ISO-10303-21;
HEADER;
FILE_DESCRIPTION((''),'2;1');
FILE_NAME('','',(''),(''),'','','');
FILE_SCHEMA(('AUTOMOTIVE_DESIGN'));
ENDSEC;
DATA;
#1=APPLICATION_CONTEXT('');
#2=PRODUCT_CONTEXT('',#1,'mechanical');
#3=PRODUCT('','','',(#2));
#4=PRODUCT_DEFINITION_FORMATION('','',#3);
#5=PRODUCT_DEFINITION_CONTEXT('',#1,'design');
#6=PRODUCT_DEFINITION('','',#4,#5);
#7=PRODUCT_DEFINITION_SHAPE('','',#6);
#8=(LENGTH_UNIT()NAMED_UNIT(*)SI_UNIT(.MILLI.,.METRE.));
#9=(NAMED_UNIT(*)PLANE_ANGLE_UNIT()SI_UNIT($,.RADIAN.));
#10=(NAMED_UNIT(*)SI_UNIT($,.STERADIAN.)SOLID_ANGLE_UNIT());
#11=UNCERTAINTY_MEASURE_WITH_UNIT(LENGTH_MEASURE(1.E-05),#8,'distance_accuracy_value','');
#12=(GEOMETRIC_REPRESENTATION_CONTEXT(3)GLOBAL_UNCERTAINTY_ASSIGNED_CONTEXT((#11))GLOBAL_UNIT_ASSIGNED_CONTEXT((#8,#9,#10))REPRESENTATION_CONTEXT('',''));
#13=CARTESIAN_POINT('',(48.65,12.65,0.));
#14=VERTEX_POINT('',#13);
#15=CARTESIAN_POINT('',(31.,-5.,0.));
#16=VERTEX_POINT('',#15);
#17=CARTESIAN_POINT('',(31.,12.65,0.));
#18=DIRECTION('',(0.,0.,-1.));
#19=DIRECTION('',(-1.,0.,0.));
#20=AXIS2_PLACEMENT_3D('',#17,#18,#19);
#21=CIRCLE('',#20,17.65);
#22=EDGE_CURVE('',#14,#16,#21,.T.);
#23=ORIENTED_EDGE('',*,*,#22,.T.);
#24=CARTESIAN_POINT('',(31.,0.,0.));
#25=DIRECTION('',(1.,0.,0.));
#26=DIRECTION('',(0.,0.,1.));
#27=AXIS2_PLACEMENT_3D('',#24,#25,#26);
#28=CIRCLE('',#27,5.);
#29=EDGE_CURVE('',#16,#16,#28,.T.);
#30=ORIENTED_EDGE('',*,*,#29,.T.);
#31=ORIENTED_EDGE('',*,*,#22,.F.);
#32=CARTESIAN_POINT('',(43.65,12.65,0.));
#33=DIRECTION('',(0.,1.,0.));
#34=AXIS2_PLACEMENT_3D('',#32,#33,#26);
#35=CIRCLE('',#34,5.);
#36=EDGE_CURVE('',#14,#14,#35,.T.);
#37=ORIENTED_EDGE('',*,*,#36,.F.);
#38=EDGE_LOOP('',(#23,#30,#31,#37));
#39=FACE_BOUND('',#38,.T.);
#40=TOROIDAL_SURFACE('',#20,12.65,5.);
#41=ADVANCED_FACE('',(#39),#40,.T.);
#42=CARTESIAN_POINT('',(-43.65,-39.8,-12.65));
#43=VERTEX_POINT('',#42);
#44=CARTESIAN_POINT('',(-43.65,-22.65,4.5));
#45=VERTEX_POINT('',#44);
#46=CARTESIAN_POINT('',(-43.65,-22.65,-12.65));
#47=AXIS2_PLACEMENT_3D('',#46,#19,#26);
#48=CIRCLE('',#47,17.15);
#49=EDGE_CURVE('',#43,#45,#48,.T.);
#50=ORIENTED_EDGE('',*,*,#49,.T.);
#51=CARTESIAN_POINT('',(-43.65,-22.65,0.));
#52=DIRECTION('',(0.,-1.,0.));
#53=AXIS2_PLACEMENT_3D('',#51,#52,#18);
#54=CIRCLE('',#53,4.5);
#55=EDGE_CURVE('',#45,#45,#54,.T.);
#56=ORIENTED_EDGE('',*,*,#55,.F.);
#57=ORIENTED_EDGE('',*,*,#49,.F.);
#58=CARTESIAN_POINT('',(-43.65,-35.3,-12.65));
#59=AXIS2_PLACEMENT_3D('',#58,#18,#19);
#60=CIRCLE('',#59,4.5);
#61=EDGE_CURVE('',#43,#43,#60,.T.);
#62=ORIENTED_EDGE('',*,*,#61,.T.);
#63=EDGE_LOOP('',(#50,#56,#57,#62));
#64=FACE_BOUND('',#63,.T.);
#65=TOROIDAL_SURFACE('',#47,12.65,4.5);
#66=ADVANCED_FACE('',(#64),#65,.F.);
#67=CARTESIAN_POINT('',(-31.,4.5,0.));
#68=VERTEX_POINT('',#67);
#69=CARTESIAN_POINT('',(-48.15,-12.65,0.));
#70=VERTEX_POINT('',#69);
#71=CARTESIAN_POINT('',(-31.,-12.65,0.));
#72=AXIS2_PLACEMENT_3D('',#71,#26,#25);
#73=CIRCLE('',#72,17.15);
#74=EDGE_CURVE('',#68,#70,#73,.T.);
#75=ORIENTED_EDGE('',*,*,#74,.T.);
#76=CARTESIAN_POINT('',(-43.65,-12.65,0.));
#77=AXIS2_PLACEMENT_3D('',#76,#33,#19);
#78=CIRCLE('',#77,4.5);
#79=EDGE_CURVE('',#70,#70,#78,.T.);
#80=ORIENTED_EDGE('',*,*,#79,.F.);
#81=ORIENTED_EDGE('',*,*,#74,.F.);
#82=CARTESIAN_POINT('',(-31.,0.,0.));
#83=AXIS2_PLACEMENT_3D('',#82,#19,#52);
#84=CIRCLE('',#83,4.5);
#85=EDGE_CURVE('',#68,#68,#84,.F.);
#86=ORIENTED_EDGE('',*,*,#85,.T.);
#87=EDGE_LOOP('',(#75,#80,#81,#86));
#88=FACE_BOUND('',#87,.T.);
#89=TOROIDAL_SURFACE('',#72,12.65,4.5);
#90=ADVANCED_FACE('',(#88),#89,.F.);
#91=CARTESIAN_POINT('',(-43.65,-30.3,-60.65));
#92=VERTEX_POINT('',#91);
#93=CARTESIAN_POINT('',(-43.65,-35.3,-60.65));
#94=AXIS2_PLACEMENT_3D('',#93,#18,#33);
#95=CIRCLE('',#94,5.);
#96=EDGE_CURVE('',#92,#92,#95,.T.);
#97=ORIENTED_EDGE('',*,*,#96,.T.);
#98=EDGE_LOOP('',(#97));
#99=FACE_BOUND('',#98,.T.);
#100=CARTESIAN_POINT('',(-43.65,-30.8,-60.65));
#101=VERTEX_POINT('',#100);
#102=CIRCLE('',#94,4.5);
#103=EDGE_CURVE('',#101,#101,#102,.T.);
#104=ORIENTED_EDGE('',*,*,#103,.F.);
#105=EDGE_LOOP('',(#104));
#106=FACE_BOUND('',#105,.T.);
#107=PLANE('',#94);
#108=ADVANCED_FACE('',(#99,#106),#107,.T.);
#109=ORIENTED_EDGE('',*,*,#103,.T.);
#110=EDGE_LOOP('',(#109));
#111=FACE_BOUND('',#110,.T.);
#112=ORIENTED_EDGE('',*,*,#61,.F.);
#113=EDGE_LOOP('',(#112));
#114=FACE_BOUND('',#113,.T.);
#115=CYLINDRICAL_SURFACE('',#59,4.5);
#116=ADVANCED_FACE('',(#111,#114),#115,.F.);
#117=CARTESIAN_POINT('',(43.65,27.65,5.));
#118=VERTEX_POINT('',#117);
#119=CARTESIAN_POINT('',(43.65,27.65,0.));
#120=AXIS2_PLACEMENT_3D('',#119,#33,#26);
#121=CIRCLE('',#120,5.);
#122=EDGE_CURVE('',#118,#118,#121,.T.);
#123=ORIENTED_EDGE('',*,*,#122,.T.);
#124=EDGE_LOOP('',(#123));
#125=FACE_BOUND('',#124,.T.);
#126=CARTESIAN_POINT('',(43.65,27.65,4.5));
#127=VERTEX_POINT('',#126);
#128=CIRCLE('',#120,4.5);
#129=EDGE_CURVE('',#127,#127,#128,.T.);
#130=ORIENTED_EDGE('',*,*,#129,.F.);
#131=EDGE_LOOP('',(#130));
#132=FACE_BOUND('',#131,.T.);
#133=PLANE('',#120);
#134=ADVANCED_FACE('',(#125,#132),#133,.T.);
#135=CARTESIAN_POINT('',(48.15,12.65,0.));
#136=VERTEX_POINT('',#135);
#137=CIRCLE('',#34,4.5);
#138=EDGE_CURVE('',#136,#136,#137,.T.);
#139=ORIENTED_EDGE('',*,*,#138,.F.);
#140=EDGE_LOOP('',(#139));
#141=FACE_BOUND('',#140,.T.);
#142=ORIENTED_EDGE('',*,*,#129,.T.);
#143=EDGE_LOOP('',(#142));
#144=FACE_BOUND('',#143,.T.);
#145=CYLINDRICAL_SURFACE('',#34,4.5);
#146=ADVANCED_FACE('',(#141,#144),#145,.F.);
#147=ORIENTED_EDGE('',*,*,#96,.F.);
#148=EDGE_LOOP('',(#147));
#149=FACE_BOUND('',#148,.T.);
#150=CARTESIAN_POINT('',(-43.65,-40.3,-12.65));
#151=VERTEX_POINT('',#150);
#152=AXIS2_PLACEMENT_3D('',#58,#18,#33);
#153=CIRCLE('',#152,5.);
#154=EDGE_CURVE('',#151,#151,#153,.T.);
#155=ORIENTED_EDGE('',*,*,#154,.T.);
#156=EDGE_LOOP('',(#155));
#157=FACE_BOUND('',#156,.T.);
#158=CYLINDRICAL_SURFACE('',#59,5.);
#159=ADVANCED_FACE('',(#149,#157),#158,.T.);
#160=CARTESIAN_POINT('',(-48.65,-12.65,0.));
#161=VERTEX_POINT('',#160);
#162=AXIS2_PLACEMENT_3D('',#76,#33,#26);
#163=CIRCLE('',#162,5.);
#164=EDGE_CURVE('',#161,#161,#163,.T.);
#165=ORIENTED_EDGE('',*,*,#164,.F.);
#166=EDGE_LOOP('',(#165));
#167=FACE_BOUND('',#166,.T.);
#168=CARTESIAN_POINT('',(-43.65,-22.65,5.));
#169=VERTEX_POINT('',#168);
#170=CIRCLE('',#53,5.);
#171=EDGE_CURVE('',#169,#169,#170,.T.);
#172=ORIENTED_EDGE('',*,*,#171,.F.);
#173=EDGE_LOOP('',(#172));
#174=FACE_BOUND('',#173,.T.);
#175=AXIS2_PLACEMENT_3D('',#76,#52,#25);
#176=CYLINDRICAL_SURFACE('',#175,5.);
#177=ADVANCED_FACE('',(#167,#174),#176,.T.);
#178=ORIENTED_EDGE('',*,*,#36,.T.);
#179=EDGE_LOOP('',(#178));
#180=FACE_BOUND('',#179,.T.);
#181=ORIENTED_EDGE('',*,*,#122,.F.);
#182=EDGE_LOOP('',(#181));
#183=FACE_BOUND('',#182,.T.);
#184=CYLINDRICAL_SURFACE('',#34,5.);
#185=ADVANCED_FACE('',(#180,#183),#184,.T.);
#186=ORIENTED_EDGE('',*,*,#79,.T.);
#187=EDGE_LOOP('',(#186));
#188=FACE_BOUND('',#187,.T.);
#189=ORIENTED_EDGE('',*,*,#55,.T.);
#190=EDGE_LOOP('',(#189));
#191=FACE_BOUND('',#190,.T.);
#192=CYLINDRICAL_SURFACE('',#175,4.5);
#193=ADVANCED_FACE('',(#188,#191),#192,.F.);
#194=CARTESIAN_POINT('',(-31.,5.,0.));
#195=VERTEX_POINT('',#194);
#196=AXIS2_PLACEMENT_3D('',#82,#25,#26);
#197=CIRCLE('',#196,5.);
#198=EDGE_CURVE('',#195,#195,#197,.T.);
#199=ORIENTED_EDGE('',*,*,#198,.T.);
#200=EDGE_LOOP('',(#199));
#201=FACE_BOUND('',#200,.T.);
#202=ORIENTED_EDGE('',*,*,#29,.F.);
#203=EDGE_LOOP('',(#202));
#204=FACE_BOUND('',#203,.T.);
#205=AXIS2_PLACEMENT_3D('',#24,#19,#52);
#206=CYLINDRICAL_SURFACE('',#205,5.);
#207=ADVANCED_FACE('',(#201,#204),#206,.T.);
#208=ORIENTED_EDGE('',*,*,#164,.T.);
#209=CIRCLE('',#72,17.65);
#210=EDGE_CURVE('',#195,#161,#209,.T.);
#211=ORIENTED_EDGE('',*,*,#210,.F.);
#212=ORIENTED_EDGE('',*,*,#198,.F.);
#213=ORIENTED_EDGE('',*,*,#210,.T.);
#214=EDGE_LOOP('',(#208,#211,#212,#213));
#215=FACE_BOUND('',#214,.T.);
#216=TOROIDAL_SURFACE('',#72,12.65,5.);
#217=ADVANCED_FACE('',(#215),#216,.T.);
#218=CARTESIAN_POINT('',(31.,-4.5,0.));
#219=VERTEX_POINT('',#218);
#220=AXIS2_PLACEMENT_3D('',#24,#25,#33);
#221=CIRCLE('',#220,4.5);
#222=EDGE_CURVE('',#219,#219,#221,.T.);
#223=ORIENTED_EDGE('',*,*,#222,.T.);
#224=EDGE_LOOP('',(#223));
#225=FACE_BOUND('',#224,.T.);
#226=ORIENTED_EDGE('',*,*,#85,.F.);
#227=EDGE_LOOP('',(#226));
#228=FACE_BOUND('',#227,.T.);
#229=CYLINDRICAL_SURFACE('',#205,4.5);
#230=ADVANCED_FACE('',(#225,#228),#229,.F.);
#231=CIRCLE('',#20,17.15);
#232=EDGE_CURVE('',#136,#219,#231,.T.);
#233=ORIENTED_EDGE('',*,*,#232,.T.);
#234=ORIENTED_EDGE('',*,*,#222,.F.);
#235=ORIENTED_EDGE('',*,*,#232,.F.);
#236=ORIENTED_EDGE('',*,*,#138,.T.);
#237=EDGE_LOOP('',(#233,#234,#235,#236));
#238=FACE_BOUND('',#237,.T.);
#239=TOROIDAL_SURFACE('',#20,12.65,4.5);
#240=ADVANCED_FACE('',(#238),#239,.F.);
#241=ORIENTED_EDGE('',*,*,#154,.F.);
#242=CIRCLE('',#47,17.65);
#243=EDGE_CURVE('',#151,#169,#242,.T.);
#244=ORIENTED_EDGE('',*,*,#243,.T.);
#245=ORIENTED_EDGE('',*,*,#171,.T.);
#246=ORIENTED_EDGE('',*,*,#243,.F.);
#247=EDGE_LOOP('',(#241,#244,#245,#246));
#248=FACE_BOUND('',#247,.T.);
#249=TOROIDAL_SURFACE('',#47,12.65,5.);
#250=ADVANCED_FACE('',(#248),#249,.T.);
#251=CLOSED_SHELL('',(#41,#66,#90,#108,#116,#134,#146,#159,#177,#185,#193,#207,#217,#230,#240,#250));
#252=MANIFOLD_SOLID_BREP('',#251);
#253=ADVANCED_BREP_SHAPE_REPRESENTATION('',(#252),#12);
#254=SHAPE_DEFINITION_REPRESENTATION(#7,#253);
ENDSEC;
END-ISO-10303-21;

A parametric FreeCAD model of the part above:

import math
import FreeCAD as App
import Part
import Sketcher

V = App.Vector
Q = App.Units.Quantity


def faces_at(feature, points):
    """Names of the faces that lie closest to the given points."""
    faces = feature.Shape.Faces
    near = lambda p: min(range(len(faces)), key=lambda i: faces[i].distToShape(Part.Vertex(*p))[0])
    return sorted({f"Face{near(p) + 1}" for p in points})

doc = App.newDocument("Part")
params = doc.addObject("Spreadsheet::Sheet", "Params")
for row, (alias, value) in enumerate([
    ("sketch1_diameter", "10 mm"),
    ("sketch2_width", "62 mm"),
    ("sketch2_height", "15 mm"),
    ("sketch2_height2", "10 mm"),
    ("sketch2_radius", "12.65 mm"),
    ("sketch3_diameter", "10 mm"),
    ("sketch4_height", "48 mm"),
    ("sketch4_radius", "12.65 mm"),
    ("thickness_wall", "0.5 mm"),
], start=1):
    params.set(f"A{row}", alias)
    params.set(f"B{row}", "=" + value)
    params.setAlias(f"B{row}", alias)

body = doc.addObject("PartDesign::Body", "Body")

sketch1 = doc.addObject("Sketcher::SketchObject", "Sketch")
body.addObject(sketch1)
sketch1.AttachmentSupport = (doc.XZ_Plane, [""])
sketch1.MapMode = "FlatFace"
sketch1.AttachmentOffset = App.Placement(V(0, 0, -27.65), App.Rotation())
sketch1.addGeometry(Part.Circle(V(44, 0, 0), V(0, 0, 1), 5), False)
sketch1.addConstraint(Sketcher.Constraint("PointOnObject", 0, 3, -1))
sketch1.addConstraint(Sketcher.Constraint("Diameter", 0, Q("10 mm")))
sketch1.addConstraint(Sketcher.Constraint("DistanceX", -1, 1, 0, 3, Q("43.65 mm")))
sketch1.setExpression("Constraints[1]", "Params.sketch1_diameter")

sketch2 = doc.addObject("Sketcher::SketchObject", "Sketch001")
body.addObject(sketch2)
sketch2.AttachmentSupport = (doc.XY_Plane, [""])
sketch2.MapMode = "FlatFace"
sketch2.addGeometry(Part.LineSegment(V(44, 28, 0), V(44, 13, 0)), False)
sketch2.addGeometry(Part.ArcOfCircle(Part.Circle(V(31, 13, 0), V(0, 0, 1), 13), math.radians(-90), math.radians(0)), False)
sketch2.addGeometry(Part.LineSegment(V(31, 0, 0), V(-31, 0, 0)), False)
sketch2.addGeometry(Part.ArcOfCircle(Part.Circle(V(-31, -13, 0), V(0, 0, 1), 13), math.radians(90), math.radians(180)), False)
sketch2.addGeometry(Part.LineSegment(V(-44, -13, 0), V(-44, -23, 0)), False)
sketch2.addConstraint(Sketcher.Constraint("Tangent", 0, 2, 1, 2))
sketch2.addConstraint(Sketcher.Constraint("Tangent", 1, 1, 2, 1))
sketch2.addConstraint(Sketcher.Constraint("Tangent", 2, 2, 3, 1))
sketch2.addConstraint(Sketcher.Constraint("Tangent", 3, 2, 4, 1))
sketch2.addConstraint(Sketcher.Constraint("Vertical", 0))
sketch2.addConstraint(Sketcher.Constraint("Horizontal", 2))
sketch2.addConstraint(Sketcher.Constraint("Vertical", 4))
sketch2.addConstraint(Sketcher.Constraint("Equal", 1, 3))
sketch2.addConstraint(Sketcher.Constraint("Symmetric", 1, 3, 3, 3, -1, 1))
sketch2.addConstraint(Sketcher.Constraint("DistanceX", 2, 2, 2, 1, Q("62 mm")))
sketch2.addConstraint(Sketcher.Constraint("DistanceY", 0, 2, 0, 1, Q("15 mm")))
sketch2.addConstraint(Sketcher.Constraint("DistanceY", 4, 2, 4, 1, Q("10 mm")))
sketch2.addConstraint(Sketcher.Constraint("Radius", 1, Q("12.65 mm")))
sketch2.setExpression("Constraints[9]", "Params.sketch2_width")
sketch2.setExpression("Constraints[10]", "Params.sketch2_height")
sketch2.setExpression("Constraints[11]", "Params.sketch2_height2")
sketch2.setExpression("Constraints[12]", "Params.sketch2_radius")
doc.recompute()

additivepipe = doc.addObject("PartDesign::AdditivePipe", "AdditivePipe")
body.addObject(additivepipe)
additivepipe.Profile = sketch1
additivepipe.Spine = (sketch2, ["Edge1", "Edge2", "Edge3", "Edge4", "Edge5"])

sketch3 = doc.addObject("Sketcher::SketchObject", "Sketch002")
body.addObject(sketch3)
sketch3.AttachmentSupport = (doc.XZ_Plane, [""])
sketch3.MapMode = "FlatFace"
sketch3.AttachmentOffset = App.Placement(V(0, 0, 22.65), App.Rotation())
sketch3.addGeometry(Part.Circle(V(-44, 0, 0), V(0, 0, 1), 5), False)
sketch3.addConstraint(Sketcher.Constraint("PointOnObject", 0, 3, -1))
sketch3.addConstraint(Sketcher.Constraint("Diameter", 0, Q("10 mm")))
sketch3.addConstraint(Sketcher.Constraint("DistanceX", 0, 3, -1, 1, Q("43.65 mm")))
sketch3.setExpression("Constraints[1]", "Params.sketch3_diameter")

sketch4 = doc.addObject("Sketcher::SketchObject", "Sketch003")
body.addObject(sketch4)
sketch4.AttachmentSupport = (doc.YZ_Plane, [""])
sketch4.MapMode = "FlatFace"
sketch4.AttachmentOffset = App.Placement(V(0, 0, -43.65), App.Rotation())
sketch4.addGeometry(Part.ArcOfCircle(Part.Circle(V(-23, -13, 0), V(0, 0, 1), 13), math.radians(90), math.radians(180)), False)
sketch4.addGeometry(Part.LineSegment(V(-35, -13, 0), V(-35, -61, 0)), False)
sketch4.addConstraint(Sketcher.Constraint("Tangent", 0, 2, 1, 1))
sketch4.addConstraint(Sketcher.Constraint("Vertical", 1))
sketch4.addConstraint(Sketcher.Constraint("PointOnObject", 0, 1, -1))
sketch4.addConstraint(Sketcher.Constraint("DistanceY", 1, 2, 1, 1, Q("48 mm")))
sketch4.addConstraint(Sketcher.Constraint("Radius", 0, Q("12.65 mm")))
sketch4.addConstraint(Sketcher.Constraint("DistanceX", 0, 2, -1, 1, Q("35.3 mm")))
sketch4.addConstraint(Sketcher.Constraint("DistanceX", 0, 1, -1, 1, Q("22.65 mm")))
sketch4.setExpression("Constraints[3]", "Params.sketch4_height")
sketch4.setExpression("Constraints[4]", "Params.sketch4_radius")
doc.recompute()

additivepipe2 = doc.addObject("PartDesign::AdditivePipe", "AdditivePipe001")
body.addObject(additivepipe2)
additivepipe2.Profile = sketch3
additivepipe2.Spine = (sketch4, ["Edge1", "Edge2"])
doc.recompute()

thickness = doc.addObject("PartDesign::Thickness", "Thickness")
body.addObject(thickness)
thickness.Base = (additivepipe2, faces_at(additivepipe2, [(-43.65, -35.3, -60.65), (43.65, 27.65, 0)]))
thickness.setExpression("Value", "Params.thickness_wall")
thickness.Reversed = True
thickness.Join = "Intersection"

doc.recompute()
